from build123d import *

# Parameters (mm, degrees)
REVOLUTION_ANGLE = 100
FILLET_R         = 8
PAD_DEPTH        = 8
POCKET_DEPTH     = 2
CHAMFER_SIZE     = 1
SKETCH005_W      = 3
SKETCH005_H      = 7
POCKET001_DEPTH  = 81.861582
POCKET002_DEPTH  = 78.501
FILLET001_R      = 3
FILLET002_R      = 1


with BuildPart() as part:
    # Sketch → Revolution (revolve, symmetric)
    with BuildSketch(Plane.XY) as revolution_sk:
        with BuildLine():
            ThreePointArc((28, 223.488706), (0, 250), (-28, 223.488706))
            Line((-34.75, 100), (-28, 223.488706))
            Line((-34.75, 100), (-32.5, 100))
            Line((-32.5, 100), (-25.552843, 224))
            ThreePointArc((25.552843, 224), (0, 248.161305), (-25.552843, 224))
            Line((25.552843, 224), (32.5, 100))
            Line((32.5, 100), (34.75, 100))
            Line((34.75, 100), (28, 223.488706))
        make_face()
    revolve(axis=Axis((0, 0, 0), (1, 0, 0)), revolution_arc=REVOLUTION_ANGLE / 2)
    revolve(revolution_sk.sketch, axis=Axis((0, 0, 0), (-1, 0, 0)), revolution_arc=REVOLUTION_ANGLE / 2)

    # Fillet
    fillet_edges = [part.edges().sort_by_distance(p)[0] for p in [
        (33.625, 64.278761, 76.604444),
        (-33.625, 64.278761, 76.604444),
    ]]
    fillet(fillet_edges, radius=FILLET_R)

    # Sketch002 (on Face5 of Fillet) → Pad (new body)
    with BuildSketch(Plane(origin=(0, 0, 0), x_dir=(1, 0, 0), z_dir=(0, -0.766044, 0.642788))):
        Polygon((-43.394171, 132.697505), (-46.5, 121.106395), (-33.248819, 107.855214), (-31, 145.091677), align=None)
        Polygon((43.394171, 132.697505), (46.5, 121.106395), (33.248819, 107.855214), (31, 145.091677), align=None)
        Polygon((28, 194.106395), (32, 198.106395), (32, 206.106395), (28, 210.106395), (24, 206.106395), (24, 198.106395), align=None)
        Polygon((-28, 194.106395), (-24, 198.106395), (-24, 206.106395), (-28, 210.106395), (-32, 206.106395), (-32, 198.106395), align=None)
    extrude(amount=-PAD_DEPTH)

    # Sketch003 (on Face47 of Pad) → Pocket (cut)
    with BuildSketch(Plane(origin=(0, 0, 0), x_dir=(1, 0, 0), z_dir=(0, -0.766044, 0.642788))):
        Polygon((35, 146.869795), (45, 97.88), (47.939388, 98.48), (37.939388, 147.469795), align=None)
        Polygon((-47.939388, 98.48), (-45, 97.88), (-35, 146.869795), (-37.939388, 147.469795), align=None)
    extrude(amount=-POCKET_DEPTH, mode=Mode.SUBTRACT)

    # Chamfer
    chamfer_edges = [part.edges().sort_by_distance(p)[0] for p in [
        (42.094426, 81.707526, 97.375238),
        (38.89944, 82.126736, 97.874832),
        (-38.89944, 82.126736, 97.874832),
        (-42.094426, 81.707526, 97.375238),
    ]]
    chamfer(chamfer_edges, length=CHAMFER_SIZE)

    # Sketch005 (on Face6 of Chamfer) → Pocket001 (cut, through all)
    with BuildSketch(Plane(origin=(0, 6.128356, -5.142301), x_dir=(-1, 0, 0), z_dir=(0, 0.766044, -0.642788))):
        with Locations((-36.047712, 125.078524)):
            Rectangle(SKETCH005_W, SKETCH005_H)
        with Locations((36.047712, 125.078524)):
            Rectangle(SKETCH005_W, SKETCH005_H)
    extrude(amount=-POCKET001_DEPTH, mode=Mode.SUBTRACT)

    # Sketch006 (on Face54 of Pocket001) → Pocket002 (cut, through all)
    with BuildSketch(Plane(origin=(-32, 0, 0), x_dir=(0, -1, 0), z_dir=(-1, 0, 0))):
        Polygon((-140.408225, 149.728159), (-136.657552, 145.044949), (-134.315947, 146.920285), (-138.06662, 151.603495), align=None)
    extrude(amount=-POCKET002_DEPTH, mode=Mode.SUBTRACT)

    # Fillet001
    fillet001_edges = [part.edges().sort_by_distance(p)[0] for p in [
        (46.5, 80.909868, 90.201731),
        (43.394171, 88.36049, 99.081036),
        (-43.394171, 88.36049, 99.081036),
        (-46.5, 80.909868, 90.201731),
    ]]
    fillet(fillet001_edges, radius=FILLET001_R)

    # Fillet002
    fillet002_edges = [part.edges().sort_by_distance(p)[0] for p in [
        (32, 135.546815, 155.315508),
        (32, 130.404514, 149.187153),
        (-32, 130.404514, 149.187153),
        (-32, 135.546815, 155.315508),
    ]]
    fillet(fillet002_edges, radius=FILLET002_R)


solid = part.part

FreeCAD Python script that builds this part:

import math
import FreeCAD as App
import Part
import Sketcher
from FreeCAD import Vector
Q = App.Units.Quantity


def edges_at(feature, points):
    """Names of the edges that pass closest to the given points."""
    edges = feature.Shape.Edges
    near = lambda p: min(range(len(edges)), key=lambda i: edges[i].distToShape(Part.Vertex(*p))[0])
    return sorted({f"Edge{near(p) + 1}" for p in points})

doc = App.newDocument("Part")
params = doc.addObject("Spreadsheet::Sheet", "Params")
for row, (alias, value) in enumerate([
    ("sketch1_width", "2.25 mm"),
    ("revolution_angle", "50 deg"),
    ("sketch2_width", "2.25 mm"),
    ("revolution2_angle", "50 deg"),
    ("fillet_radius", "8 mm"),
    ("sketch3_height", "8 mm"),
    ("sketch3_length", "12 mm"),
    ("sketch3_length2", "18.74 mm"),
    ("pad1_length", "8 mm"),
    ("sketch4_length", "50 mm"),
    ("sketch4_length2", "3 mm"),
    ("pocket1_length", "2 mm"),
    ("chamfer_size", "1 mm"),
    ("sketch5_width", "3 mm"),
    ("sketch5_height", "7 mm"),
    ("sketch6_length", "6 mm"),
    ("sketch6_length2", "3 mm"),
    ("fillet2_radius", "3 mm"),
    ("fillet3_radius", "1 mm"),
], start=1):
    params.set(f"A{row}", alias)
    params.set(f"B{row}", "=" + value)
    params.setAlias(f"B{row}", alias)

body = doc.addObject("PartDesign::Body", "Body")

sketch1 = body.newObject("Sketcher::SketchObject", "Sketch")
sketch1.AttachmentSupport = (doc.getObject("XY_Plane"), [""])
sketch1.MapMode = "FlatFace"
sketch1.addGeometry([
    Part.ArcOfCircle(Part.Circle(Vector(0, 221.958202, 0), Vector(0, 0, 1), 28.041798), math.radians(3.128723), math.radians(176.871277)),
    Part.LineSegment(Vector(-28, 223.488706, 0), Vector(-34.75, 100, 0)),
    Part.LineSegment(Vector(-34.75, 100, 0), Vector(-32.5, 100, 0)),
    Part.LineSegment(Vector(-32.5, 100, 0), Vector(-25.552843, 224, 0)),
    Part.ArcOfCircle(Part.Circle(Vector(0, 222.56839, 0), Vector(0, 0, 1), 25.592915), math.radians(3.20667), math.radians(176.79333)),
    Part.LineSegment(Vector(25.552843, 224, 0), Vector(32.5, 100, 0)),
    Part.LineSegment(Vector(32.5, 100, 0), Vector(34.75, 100, 0)),
    Part.LineSegment(Vector(34.75, 100, 0), Vector(28, 223.488706, 0)),
], False)
sketch1.addConstraint([
    Sketcher.Constraint("Tangent", 0, 2, 1, 1),
    Sketcher.Constraint("Coincident", 1, 2, 2, 1),
    Sketcher.Constraint("Coincident", 2, 2, 3, 1),
    Sketcher.Constraint("Tangent", 3, 2, 4, 2),
    Sketcher.Constraint("Tangent", 4, 1, 5, 1),
    Sketcher.Constraint("Coincident", 5, 2, 6, 1),
    Sketcher.Constraint("Coincident", 6, 2, 7, 1),
    Sketcher.Constraint("Tangent", 7, 2, 0, 1),
    Sketcher.Constraint("Horizontal", 2),
    Sketcher.Constraint("Horizontal", 6),
    Sketcher.Constraint("Symmetric", 3, 2, 4, 1, -2),
    Sketcher.Constraint("Symmetric", 1, 2, 6, 2, -2),
    Sketcher.Constraint("PointOnObject", 0, 3, -2),
    Sketcher.Constraint("DistanceX", 0, 2, -1, 1, 28.0),
    Sketcher.Constraint("DistanceY", -1, 1, 1, 2, 100.0),
    Sketcher.Constraint("DistanceY", -1, 1, 3, 2, 224.0),
    Sketcher.Constraint("DistanceX", 2, 2, 5, 2, 65.0),
    Sketcher.Constraint("DistanceX", 2, 1, 2, 2, 2.25),
    Sketcher.Constraint("Radius", 4, 25.592915),
    Sketcher.Constraint("DistanceY", -1, 1, 0, 3, 221.958202),
])
sketch1.setExpression("Constraints[17]", "Params.sketch1_width")
revolution = body.newObject("PartDesign::Revolution", "Revolution")
revolution.Profile = sketch1
revolution.ReferenceAxis = (sketch1, ["H_Axis"])
revolution.setExpression("Angle", "Params.revolution_angle")

sketch2 = body.newObject("Sketcher::SketchObject", "Sketch001")
sketch2.AttachmentSupport = (doc.getObject("XY_Plane"), [""])
sketch2.MapMode = "FlatFace"
sketch2.addGeometry([
    Part.ArcOfCircle(Part.Circle(Vector(0, 221.958202, 0), Vector(0, 0, 1), 28.041798), math.radians(3.128723), math.radians(176.871277)),
    Part.LineSegment(Vector(-28, 223.488706, 0), Vector(-34.75, 100, 0)),
    Part.LineSegment(Vector(-34.75, 100, 0), Vector(-32.5, 100, 0)),
    Part.LineSegment(Vector(-32.5, 100, 0), Vector(-25.552843, 224, 0)),
    Part.ArcOfCircle(Part.Circle(Vector(0, 222.56839, 0), Vector(0, 0, 1), 25.592915), math.radians(3.20667), math.radians(176.79333)),
    Part.LineSegment(Vector(25.552843, 224, 0), Vector(32.5, 100, 0)),
    Part.LineSegment(Vector(32.5, 100, 0), Vector(34.75, 100, 0)),
    Part.LineSegment(Vector(34.75, 100, 0), Vector(28, 223.488706, 0)),
], False)
sketch2.addConstraint([
    Sketcher.Constraint("Tangent", 0, 2, 1, 1),
    Sketcher.Constraint("Coincident", 1, 2, 2, 1),
    Sketcher.Constraint("Coincident", 2, 2, 3, 1),
    Sketcher.Constraint("Tangent", 3, 2, 4, 2),
    Sketcher.Constraint("Tangent", 4, 1, 5, 1),
    Sketcher.Constraint("Coincident", 5, 2, 6, 1),
    Sketcher.Constraint("Coincident", 6, 2, 7, 1),
    Sketcher.Constraint("Tangent", 7, 2, 0, 1),
    Sketcher.Constraint("Horizontal", 2),
    Sketcher.Constraint("Horizontal", 6),
    Sketcher.Constraint("Symmetric", 3, 2, 4, 1, -2),
    Sketcher.Constraint("Symmetric", 1, 2, 6, 2, -2),
    Sketcher.Constraint("PointOnObject", 0, 3, -2),
    Sketcher.Constraint("DistanceX", 0, 2, -1, 1, 28.0),
    Sketcher.Constraint("DistanceY", -1, 1, 1, 2, 100.0),
    Sketcher.Constraint("DistanceY", -1, 1, 3, 2, 224.0),
    Sketcher.Constraint("DistanceX", 2, 2, 5, 2, 65.0),
    Sketcher.Constraint("DistanceX", 2, 1, 2, 2, 2.25),
    Sketcher.Constraint("Radius", 4, 25.592915),
    Sketcher.Constraint("DistanceY", -1, 1, 0, 3, 221.958202),
])
sketch2.setExpression("Constraints[17]", "Params.sketch2_width")
revolution2 = body.newObject("PartDesign::Revolution", "Revolution001")
revolution2.Profile = sketch2
revolution2.ReferenceAxis = (sketch2, ["H_Axis"])
revolution2.setExpression("Angle", "Params.revolution2_angle")
revolution2.Reversed = True
doc.recompute()

fillet = body.newObject("PartDesign::Fillet", "Fillet")
fillet.Base = (revolution2, edges_at(revolution2, [(33.625, 64.279, 76.604), (-33.625, 64.279, 76.604)]))
fillet.setExpression("Radius", "Params.fillet_radius")

sketch3 = body.newObject("Sketcher::SketchObject", "Sketch002")
sketch3.Placement = App.Placement(Vector(0, 0, 0), App.Rotation(Vector(1, 0, 0), Vector(0, 0.642788057, 0.766044068), Vector(0, -0.766044068, 0.642788057), "ZXY"))
sketch3.addGeometry([
    Part.LineSegment(Vector(-43.394171, 132.697505, 0), Vector(-46.5, 121.106395, 0)),
    Part.LineSegment(Vector(-46.5, 121.106395, 0), Vector(-33.248819, 107.855214, 0)),
    Part.LineSegment(Vector(-33.248819, 107.855214, 0), Vector(-31, 145.091677, 0)),
    Part.LineSegment(Vector(-31, 145.091677, 0), Vector(-43.394171, 132.697505, 0)),
    Part.LineSegment(Vector(46.5, 121.106395, 0), Vector(43.394171, 132.697505, 0)),
    Part.LineSegment(Vector(43.394171, 132.697505, 0), Vector(31, 145.091677, 0)),
    Part.LineSegment(Vector(31, 145.091677, 0), Vector(33.248819, 107.855214, 0)),
    Part.LineSegment(Vector(33.248819, 107.855214, 0), Vector(46.5, 121.106395, 0)),
    Part.LineSegment(Vector(28, 194.106395, 0), Vector(32, 198.106395, 0)),
    Part.LineSegment(Vector(32, 198.106395, 0), Vector(32, 206.106395, 0)),
    Part.LineSegment(Vector(32, 206.106395, 0), Vector(28, 210.106395, 0)),
    Part.LineSegment(Vector(28, 210.106395, 0), Vector(24, 206.106395, 0)),
    Part.LineSegment(Vector(24, 206.106395, 0), Vector(24, 198.106395, 0)),
    Part.LineSegment(Vector(24, 198.106395, 0), Vector(28, 194.106395, 0)),
    Part.LineSegment(Vector(-28, 194.106395, 0), Vector(-24, 198.106395, 0)),
    Part.LineSegment(Vector(-24, 198.106395, 0), Vector(-24, 206.106395, 0)),
    Part.LineSegment(Vector(-24, 206.106395, 0), Vector(-28, 210.106395, 0)),
    Part.LineSegment(Vector(-28, 210.106395, 0), Vector(-32, 206.106395, 0)),
    Part.LineSegment(Vector(-32, 206.106395, 0), Vector(-32, 198.106395, 0)),
    Part.LineSegment(Vector(-32, 198.106395, 0), Vector(-28, 194.106395, 0)),
], False)
sketch3.addConstraint([
    Sketcher.Constraint("Coincident", 0, 2, 1, 1),
    Sketcher.Constraint("Coincident", 1, 2, 2, 1),
    Sketcher.Constraint("Coincident", 2, 2, 3, 1),
    Sketcher.Constraint("Coincident", 3, 2, 0, 1),
    Sketcher.Constraint("Coincident", 4, 2, 5, 1),
    Sketcher.Constraint("Coincident", 5, 2, 6, 1),
    Sketcher.Constraint("Coincident", 6, 2, 7, 1),
    Sketcher.Constraint("Coincident", 7, 2, 4, 1),
    Sketcher.Constraint("Coincident", 8, 2, 9, 1),
    Sketcher.Constraint("Coincident", 9, 2, 10, 1),
    Sketcher.Constraint("Coincident", 10, 2, 11, 1),
    Sketcher.Constraint("Coincident", 11, 2, 12, 1),
    Sketcher.Constraint("Coincident", 12, 2, 13, 1),
    Sketcher.Constraint("Coincident", 13, 2, 8, 1),
    Sketcher.Constraint("Coincident", 14, 2, 15, 1),
    Sketcher.Constraint("Coincident", 15, 2, 16, 1),
    Sketcher.Constraint("Coincident", 16, 2, 17, 1),
    Sketcher.Constraint("Coincident", 17, 2, 18, 1),
    Sketcher.Constraint("Coincident", 18, 2, 19, 1),
    Sketcher.Constraint("Coincident", 19, 2, 14, 1),
    Sketcher.Constraint("Vertical", 9),
    Sketcher.Constraint("Vertical", 12),
    Sketcher.Constraint("Vertical", 15),
    Sketcher.Constraint("Vertical", 18),
    Sketcher.Constraint("Symmetric", 3, 2, 4, 2, -2),
    Sketcher.Constraint("Symmetric", 2, 2, 5, 2, -2),
    Sketcher.Constraint("Symmetric", 1, 2, 6, 2, -2),
    Sketcher.Constraint("Symmetric", 0, 2, 7, 2, -2),
    Sketcher.Constraint("Symmetric", 12, 2, 14, 2, -2),
    Sketcher.Constraint("Symmetric", 10, 2, 16, 2, -2),
    Sketcher.Constraint("Symmetric", 9, 2, 17, 2, -2),
    Sketcher.Constraint("Symmetric", 13, 2, 19, 2, -2),
    Sketcher.Constraint("Perpendicular", 1, 3),
    Sketcher.Constraint("Perpendicular", 3, 5),
    Sketcher.Constraint("Parallel", 7, 8),
    Sketcher.Constraint("Perpendicular", 8, 10),
    Sketcher.Constraint("Perpendicular", 10, 11),
    Sketcher.Constraint("Perpendicular", 11, 13),
    Sketcher.Constraint("Perpendicular", 14, 16),
    Sketcher.Constraint("Perpendicular", 17, 19),
    Sketcher.Constraint("Horizontal", 9, 2, 11, 2),
    Sketcher.Constraint("Horizontal", 8, 2, 12, 2),
    Sketcher.Constraint("DistanceY", 9, 1, 9, 2, 8.0),
    Sketcher.Constraint("Angle", 0, Q("-105.000002 deg")),
    Sketcher.Constraint("Distance", 0, 12.0),
    Sketcher.Constraint("DistanceX", 2, 2, -1, 1, 31.0),
    Sketcher.Constraint("DistanceX", -1, 1, 8, 2, 32.0),
    Sketcher.Constraint("DistanceX", -1, 1, 10, 2, 28.0),
    Sketcher.Constraint("DistanceY", 7, 2, 8, 2, 77.0),
    Sketcher.Constraint("DistanceX", 0, 2, -1, 1, 46.5),
    Sketcher.Constraint("Distance", 1, 18.74),
    Sketcher.Constraint("DistanceY", -1, 1, 0, 2, 121.106395),
])
sketch3.setExpression("Constraints[42]", "Params.sketch3_height")
sketch3.setExpression("Constraints[44]", "Params.sketch3_length")
sketch3.setExpression("Constraints[50]", "Params.sketch3_length2")
pad1 = body.newObject("PartDesign::Pad", "Pad")
pad1.Profile = sketch3
pad1.setExpression("Length", "Params.pad1_length")
pad1.Reversed = True

sketch4 = body.newObject("Sketcher::SketchObject", "Sketch003")
sketch4.Placement = App.Placement(Vector(0, 0, 0), App.Rotation(Vector(1, 0, 0), Vector(0, 0.642788057, 0.766044068), Vector(0, -0.766044068, 0.642788057), "ZXY"))
sketch4.addGeometry([
    Part.LineSegment(Vector(35, 146.869795, 0), Vector(45, 97.88, 0)),
    Part.LineSegment(Vector(45, 97.88, 0), Vector(47.939388, 98.48, 0)),
    Part.LineSegment(Vector(47.939388, 98.48, 0), Vector(37.939388, 147.469795, 0)),
    Part.LineSegment(Vector(37.939388, 147.469795, 0), Vector(35, 146.869795, 0)),
    Part.LineSegment(Vector(-47.939388, 98.48, 0), Vector(-45, 97.88, 0)),
    Part.LineSegment(Vector(-45, 97.88, 0), Vector(-35, 146.869795, 0)),
    Part.LineSegment(Vector(-35, 146.869795, 0), Vector(-37.939388, 147.469795, 0)),
    Part.LineSegment(Vector(-37.939388, 147.469795, 0), Vector(-47.939388, 98.48, 0)),
], False)
sketch4.addConstraint([
    Sketcher.Constraint("Coincident", 0, 2, 1, 1),
    Sketcher.Constraint("Coincident", 1, 2, 2, 1),
    Sketcher.Constraint("Coincident", 2, 2, 3, 1),
    Sketcher.Constraint("Coincident", 3, 2, 0, 1),
    Sketcher.Constraint("Coincident", 4, 2, 5, 1),
    Sketcher.Constraint("Coincident", 5, 2, 6, 1),
    Sketcher.Constraint("Coincident", 6, 2, 7, 1),
    Sketcher.Constraint("Coincident", 7, 2, 4, 1),
    Sketcher.Constraint("Symmetric", 0, 2, 4, 2, -2),
    Sketcher.Constraint("Symmetric", 3, 2, 5, 2, -2),
    Sketcher.Constraint("Symmetric", 2, 2, 6, 2, -2),
    Sketcher.Constraint("Symmetric", 1, 2, 7, 2, -2),
    Sketcher.Constraint("Perpendicular", 0, 1),
    Sketcher.Constraint("Perpendicular", 1, 2),
    Sketcher.Constraint("Perpendicular", 2, 3),
    Sketcher.Constraint("Distance", 0, 50.0),
    Sketcher.Constraint("Distance", 1, 3.0),
    Sketcher.Constraint("DistanceX", -1, 1, 0, 2, 45.0),
    Sketcher.Constraint("DistanceX", -1, 1, 3, 2, 35.0),
    Sketcher.Constraint("DistanceY", -1, 1, 0, 2, 97.88),
])
sketch4.setExpression("Constraints[15]", "Params.sketch4_length")
sketch4.setExpression("Constraints[16]", "Params.sketch4_length2")
pocket1 = body.newObject("PartDesign::Pocket", "Pocket")
pocket1.Profile = sketch4
pocket1.setExpression("Length", "Params.pocket1_length")
doc.recompute()

chamfer = body.newObject("PartDesign::Chamfer", "Chamfer")
chamfer.Base = (pocket1, edges_at(pocket1, [
    (42.094, 81.708, 97.375),
    (38.899, 82.127, 97.875),
    (-38.899, 82.127, 97.875),
    (-42.094, 81.708, 97.375),
]))
chamfer.setExpression("Size", "Params.chamfer_size")

sketch5 = body.newObject("Sketcher::SketchObject", "Sketch004")
sketch5.Placement = App.Placement(Vector(0, 6.128356, -5.142301), App.Rotation(Vector(-1, 0, 0), Vector(0, 0.642788057, 0.766044068), Vector(0, 0.766044068, -0.642788057), "ZXY"))
sketch5.addGeometry([
    Part.LineSegment(Vector(-37.547712, 128.578524, 0), Vector(-37.547712, 121.578524, 0)),
    Part.LineSegment(Vector(-37.547712, 121.578524, 0), Vector(-34.547712, 121.578524, 0)),
    Part.LineSegment(Vector(-34.547712, 121.578524, 0), Vector(-34.547712, 128.578524, 0)),
    Part.LineSegment(Vector(-34.547712, 128.578524, 0), Vector(-37.547712, 128.578524, 0)),
    Part.LineSegment(Vector(34.547712, 128.578524, 0), Vector(34.547712, 121.578524, 0)),
    Part.LineSegment(Vector(34.547712, 121.578524, 0), Vector(37.547712, 121.578524, 0)),
    Part.LineSegment(Vector(37.547712, 121.578524, 0), Vector(37.547712, 128.578524, 0)),
    Part.LineSegment(Vector(37.547712, 128.578524, 0), Vector(34.547712, 128.578524, 0)),
], False)
sketch5.addConstraint([
    Sketcher.Constraint("Coincident", 0, 2, 1, 1),
    Sketcher.Constraint("Coincident", 1, 2, 2, 1),
    Sketcher.Constraint("Coincident", 2, 2, 3, 1),
    Sketcher.Constraint("Coincident", 3, 2, 0, 1),
    Sketcher.Constraint("Coincident", 4, 2, 5, 1),
    Sketcher.Constraint("Coincident", 5, 2, 6, 1),
    Sketcher.Constraint("Coincident", 6, 2, 7, 1),
    Sketcher.Constraint("Coincident", 7, 2, 4, 1),
    Sketcher.Constraint("Vertical", 0),
    Sketcher.Constraint("Horizontal", 1),
    Sketcher.Constraint("Vertical", 2),
    Sketcher.Constraint("Horizontal", 3),
    Sketcher.Constraint("Vertical", 4),
    Sketcher.Constraint("Horizontal", 5),
    Sketcher.Constraint("Vertical", 6),
    Sketcher.Constraint("Horizontal", 7),
    Sketcher.Constraint("Symmetric", 1, 2, 4, 2, -2),
    Sketcher.Constraint("Symmetric", 3, 2, 6, 2, -2),
    Sketcher.Constraint("DistanceX", 1, 1, 1, 2, 3.0),
    Sketcher.Constraint("DistanceY", 0, 2, 0, 1, 7.0),
    Sketcher.Constraint("DistanceX", 0, 2, -1, 1, 37.547712),
    Sketcher.Constraint("DistanceY", -1, 1, 0, 2, 121.578524),
])
sketch5.setExpression("Constraints[18]", "Params.sketch5_width")
sketch5.setExpression("Constraints[19]", "Params.sketch5_height")
pocket2 = body.newObject("PartDesign::Pocket", "Pocket001")
pocket2.Profile = sketch5
pocket2.Type = "ThroughAll"

sketch6 = body.newObject("Sketcher::SketchObject", "Sketch005")
sketch6.AttachmentSupport = (doc.getObject("YZ_Plane"), [""])
sketch6.MapMode = "FlatFace"
sketch6.AttachmentOffset = App.Placement(Vector(0, 0, -32), App.Rotation())
sketch6.addGeometry([
    Part.LineSegment(Vector(140.408225, 149.728159, 0), Vector(136.657552, 145.044949, 0)),
    Part.LineSegment(Vector(136.657552, 145.044949, 0), Vector(134.315947, 146.920285, 0)),
    Part.LineSegment(Vector(134.315947, 146.920285, 0), Vector(138.06662, 151.603495, 0)),
    Part.LineSegment(Vector(138.06662, 151.603495, 0), Vector(140.408225, 149.728159, 0)),
], False)
sketch6.addConstraint([
    Sketcher.Constraint("Coincident", 0, 2, 1, 1),
    Sketcher.Constraint("Coincident", 1, 2, 2, 1),
    Sketcher.Constraint("Coincident", 2, 2, 3, 1),
    Sketcher.Constraint("Coincident", 3, 2, 0, 1),
    Sketcher.Constraint("Perpendicular", 0, 1),
    Sketcher.Constraint("Perpendicular", 1, 2),
    Sketcher.Constraint("Perpendicular", 2, 3),
    Sketcher.Constraint("Distance", 0, 6.0),
    Sketcher.Constraint("Distance", 1, 3.0),
    Sketcher.Constraint("DistanceY", -1, 1, 0, 2, 145.044949),
    Sketcher.Constraint("DistanceX", -1, 1, 2, 2, 138.06662),
    Sketcher.Constraint("DistanceY", -1, 1, 3, 2, 149.728159),
])
sketch6.setExpression("Constraints[7]", "Params.sketch6_length")
sketch6.setExpression("Constraints[8]", "Params.sketch6_length2")
pocket3 = body.newObject("PartDesign::Pocket", "Pocket002")
pocket3.Profile = sketch6
pocket3.Type = "ThroughAll"
pocket3.Reversed = True
doc.recompute()

fillet2 = body.newObject("PartDesign::Fillet", "Fillet001")
fillet2.Base = (pocket3, edges_at(pocket3, [
    (46.5, 80.91, 90.202),
    (43.394, 88.361, 99.081),
    (-43.394, 88.361, 99.081),
    (-46.5, 80.91, 90.202),
]))
fillet2.setExpression("Radius", "Params.fillet2_radius")
doc.recompute()

fillet3 = body.newObject("PartDesign::Fillet", "Fillet002")
fillet3.Base = (fillet2, edges_at(fillet2, [
    (32, 135.547, 155.315),
    (32, 130.405, 149.187),
    (-32, 130.405, 149.187),
    (-32, 135.547, 155.315),
]))
fillet3.setExpression("Radius", "Params.fillet3_radius")

doc.recompute()
